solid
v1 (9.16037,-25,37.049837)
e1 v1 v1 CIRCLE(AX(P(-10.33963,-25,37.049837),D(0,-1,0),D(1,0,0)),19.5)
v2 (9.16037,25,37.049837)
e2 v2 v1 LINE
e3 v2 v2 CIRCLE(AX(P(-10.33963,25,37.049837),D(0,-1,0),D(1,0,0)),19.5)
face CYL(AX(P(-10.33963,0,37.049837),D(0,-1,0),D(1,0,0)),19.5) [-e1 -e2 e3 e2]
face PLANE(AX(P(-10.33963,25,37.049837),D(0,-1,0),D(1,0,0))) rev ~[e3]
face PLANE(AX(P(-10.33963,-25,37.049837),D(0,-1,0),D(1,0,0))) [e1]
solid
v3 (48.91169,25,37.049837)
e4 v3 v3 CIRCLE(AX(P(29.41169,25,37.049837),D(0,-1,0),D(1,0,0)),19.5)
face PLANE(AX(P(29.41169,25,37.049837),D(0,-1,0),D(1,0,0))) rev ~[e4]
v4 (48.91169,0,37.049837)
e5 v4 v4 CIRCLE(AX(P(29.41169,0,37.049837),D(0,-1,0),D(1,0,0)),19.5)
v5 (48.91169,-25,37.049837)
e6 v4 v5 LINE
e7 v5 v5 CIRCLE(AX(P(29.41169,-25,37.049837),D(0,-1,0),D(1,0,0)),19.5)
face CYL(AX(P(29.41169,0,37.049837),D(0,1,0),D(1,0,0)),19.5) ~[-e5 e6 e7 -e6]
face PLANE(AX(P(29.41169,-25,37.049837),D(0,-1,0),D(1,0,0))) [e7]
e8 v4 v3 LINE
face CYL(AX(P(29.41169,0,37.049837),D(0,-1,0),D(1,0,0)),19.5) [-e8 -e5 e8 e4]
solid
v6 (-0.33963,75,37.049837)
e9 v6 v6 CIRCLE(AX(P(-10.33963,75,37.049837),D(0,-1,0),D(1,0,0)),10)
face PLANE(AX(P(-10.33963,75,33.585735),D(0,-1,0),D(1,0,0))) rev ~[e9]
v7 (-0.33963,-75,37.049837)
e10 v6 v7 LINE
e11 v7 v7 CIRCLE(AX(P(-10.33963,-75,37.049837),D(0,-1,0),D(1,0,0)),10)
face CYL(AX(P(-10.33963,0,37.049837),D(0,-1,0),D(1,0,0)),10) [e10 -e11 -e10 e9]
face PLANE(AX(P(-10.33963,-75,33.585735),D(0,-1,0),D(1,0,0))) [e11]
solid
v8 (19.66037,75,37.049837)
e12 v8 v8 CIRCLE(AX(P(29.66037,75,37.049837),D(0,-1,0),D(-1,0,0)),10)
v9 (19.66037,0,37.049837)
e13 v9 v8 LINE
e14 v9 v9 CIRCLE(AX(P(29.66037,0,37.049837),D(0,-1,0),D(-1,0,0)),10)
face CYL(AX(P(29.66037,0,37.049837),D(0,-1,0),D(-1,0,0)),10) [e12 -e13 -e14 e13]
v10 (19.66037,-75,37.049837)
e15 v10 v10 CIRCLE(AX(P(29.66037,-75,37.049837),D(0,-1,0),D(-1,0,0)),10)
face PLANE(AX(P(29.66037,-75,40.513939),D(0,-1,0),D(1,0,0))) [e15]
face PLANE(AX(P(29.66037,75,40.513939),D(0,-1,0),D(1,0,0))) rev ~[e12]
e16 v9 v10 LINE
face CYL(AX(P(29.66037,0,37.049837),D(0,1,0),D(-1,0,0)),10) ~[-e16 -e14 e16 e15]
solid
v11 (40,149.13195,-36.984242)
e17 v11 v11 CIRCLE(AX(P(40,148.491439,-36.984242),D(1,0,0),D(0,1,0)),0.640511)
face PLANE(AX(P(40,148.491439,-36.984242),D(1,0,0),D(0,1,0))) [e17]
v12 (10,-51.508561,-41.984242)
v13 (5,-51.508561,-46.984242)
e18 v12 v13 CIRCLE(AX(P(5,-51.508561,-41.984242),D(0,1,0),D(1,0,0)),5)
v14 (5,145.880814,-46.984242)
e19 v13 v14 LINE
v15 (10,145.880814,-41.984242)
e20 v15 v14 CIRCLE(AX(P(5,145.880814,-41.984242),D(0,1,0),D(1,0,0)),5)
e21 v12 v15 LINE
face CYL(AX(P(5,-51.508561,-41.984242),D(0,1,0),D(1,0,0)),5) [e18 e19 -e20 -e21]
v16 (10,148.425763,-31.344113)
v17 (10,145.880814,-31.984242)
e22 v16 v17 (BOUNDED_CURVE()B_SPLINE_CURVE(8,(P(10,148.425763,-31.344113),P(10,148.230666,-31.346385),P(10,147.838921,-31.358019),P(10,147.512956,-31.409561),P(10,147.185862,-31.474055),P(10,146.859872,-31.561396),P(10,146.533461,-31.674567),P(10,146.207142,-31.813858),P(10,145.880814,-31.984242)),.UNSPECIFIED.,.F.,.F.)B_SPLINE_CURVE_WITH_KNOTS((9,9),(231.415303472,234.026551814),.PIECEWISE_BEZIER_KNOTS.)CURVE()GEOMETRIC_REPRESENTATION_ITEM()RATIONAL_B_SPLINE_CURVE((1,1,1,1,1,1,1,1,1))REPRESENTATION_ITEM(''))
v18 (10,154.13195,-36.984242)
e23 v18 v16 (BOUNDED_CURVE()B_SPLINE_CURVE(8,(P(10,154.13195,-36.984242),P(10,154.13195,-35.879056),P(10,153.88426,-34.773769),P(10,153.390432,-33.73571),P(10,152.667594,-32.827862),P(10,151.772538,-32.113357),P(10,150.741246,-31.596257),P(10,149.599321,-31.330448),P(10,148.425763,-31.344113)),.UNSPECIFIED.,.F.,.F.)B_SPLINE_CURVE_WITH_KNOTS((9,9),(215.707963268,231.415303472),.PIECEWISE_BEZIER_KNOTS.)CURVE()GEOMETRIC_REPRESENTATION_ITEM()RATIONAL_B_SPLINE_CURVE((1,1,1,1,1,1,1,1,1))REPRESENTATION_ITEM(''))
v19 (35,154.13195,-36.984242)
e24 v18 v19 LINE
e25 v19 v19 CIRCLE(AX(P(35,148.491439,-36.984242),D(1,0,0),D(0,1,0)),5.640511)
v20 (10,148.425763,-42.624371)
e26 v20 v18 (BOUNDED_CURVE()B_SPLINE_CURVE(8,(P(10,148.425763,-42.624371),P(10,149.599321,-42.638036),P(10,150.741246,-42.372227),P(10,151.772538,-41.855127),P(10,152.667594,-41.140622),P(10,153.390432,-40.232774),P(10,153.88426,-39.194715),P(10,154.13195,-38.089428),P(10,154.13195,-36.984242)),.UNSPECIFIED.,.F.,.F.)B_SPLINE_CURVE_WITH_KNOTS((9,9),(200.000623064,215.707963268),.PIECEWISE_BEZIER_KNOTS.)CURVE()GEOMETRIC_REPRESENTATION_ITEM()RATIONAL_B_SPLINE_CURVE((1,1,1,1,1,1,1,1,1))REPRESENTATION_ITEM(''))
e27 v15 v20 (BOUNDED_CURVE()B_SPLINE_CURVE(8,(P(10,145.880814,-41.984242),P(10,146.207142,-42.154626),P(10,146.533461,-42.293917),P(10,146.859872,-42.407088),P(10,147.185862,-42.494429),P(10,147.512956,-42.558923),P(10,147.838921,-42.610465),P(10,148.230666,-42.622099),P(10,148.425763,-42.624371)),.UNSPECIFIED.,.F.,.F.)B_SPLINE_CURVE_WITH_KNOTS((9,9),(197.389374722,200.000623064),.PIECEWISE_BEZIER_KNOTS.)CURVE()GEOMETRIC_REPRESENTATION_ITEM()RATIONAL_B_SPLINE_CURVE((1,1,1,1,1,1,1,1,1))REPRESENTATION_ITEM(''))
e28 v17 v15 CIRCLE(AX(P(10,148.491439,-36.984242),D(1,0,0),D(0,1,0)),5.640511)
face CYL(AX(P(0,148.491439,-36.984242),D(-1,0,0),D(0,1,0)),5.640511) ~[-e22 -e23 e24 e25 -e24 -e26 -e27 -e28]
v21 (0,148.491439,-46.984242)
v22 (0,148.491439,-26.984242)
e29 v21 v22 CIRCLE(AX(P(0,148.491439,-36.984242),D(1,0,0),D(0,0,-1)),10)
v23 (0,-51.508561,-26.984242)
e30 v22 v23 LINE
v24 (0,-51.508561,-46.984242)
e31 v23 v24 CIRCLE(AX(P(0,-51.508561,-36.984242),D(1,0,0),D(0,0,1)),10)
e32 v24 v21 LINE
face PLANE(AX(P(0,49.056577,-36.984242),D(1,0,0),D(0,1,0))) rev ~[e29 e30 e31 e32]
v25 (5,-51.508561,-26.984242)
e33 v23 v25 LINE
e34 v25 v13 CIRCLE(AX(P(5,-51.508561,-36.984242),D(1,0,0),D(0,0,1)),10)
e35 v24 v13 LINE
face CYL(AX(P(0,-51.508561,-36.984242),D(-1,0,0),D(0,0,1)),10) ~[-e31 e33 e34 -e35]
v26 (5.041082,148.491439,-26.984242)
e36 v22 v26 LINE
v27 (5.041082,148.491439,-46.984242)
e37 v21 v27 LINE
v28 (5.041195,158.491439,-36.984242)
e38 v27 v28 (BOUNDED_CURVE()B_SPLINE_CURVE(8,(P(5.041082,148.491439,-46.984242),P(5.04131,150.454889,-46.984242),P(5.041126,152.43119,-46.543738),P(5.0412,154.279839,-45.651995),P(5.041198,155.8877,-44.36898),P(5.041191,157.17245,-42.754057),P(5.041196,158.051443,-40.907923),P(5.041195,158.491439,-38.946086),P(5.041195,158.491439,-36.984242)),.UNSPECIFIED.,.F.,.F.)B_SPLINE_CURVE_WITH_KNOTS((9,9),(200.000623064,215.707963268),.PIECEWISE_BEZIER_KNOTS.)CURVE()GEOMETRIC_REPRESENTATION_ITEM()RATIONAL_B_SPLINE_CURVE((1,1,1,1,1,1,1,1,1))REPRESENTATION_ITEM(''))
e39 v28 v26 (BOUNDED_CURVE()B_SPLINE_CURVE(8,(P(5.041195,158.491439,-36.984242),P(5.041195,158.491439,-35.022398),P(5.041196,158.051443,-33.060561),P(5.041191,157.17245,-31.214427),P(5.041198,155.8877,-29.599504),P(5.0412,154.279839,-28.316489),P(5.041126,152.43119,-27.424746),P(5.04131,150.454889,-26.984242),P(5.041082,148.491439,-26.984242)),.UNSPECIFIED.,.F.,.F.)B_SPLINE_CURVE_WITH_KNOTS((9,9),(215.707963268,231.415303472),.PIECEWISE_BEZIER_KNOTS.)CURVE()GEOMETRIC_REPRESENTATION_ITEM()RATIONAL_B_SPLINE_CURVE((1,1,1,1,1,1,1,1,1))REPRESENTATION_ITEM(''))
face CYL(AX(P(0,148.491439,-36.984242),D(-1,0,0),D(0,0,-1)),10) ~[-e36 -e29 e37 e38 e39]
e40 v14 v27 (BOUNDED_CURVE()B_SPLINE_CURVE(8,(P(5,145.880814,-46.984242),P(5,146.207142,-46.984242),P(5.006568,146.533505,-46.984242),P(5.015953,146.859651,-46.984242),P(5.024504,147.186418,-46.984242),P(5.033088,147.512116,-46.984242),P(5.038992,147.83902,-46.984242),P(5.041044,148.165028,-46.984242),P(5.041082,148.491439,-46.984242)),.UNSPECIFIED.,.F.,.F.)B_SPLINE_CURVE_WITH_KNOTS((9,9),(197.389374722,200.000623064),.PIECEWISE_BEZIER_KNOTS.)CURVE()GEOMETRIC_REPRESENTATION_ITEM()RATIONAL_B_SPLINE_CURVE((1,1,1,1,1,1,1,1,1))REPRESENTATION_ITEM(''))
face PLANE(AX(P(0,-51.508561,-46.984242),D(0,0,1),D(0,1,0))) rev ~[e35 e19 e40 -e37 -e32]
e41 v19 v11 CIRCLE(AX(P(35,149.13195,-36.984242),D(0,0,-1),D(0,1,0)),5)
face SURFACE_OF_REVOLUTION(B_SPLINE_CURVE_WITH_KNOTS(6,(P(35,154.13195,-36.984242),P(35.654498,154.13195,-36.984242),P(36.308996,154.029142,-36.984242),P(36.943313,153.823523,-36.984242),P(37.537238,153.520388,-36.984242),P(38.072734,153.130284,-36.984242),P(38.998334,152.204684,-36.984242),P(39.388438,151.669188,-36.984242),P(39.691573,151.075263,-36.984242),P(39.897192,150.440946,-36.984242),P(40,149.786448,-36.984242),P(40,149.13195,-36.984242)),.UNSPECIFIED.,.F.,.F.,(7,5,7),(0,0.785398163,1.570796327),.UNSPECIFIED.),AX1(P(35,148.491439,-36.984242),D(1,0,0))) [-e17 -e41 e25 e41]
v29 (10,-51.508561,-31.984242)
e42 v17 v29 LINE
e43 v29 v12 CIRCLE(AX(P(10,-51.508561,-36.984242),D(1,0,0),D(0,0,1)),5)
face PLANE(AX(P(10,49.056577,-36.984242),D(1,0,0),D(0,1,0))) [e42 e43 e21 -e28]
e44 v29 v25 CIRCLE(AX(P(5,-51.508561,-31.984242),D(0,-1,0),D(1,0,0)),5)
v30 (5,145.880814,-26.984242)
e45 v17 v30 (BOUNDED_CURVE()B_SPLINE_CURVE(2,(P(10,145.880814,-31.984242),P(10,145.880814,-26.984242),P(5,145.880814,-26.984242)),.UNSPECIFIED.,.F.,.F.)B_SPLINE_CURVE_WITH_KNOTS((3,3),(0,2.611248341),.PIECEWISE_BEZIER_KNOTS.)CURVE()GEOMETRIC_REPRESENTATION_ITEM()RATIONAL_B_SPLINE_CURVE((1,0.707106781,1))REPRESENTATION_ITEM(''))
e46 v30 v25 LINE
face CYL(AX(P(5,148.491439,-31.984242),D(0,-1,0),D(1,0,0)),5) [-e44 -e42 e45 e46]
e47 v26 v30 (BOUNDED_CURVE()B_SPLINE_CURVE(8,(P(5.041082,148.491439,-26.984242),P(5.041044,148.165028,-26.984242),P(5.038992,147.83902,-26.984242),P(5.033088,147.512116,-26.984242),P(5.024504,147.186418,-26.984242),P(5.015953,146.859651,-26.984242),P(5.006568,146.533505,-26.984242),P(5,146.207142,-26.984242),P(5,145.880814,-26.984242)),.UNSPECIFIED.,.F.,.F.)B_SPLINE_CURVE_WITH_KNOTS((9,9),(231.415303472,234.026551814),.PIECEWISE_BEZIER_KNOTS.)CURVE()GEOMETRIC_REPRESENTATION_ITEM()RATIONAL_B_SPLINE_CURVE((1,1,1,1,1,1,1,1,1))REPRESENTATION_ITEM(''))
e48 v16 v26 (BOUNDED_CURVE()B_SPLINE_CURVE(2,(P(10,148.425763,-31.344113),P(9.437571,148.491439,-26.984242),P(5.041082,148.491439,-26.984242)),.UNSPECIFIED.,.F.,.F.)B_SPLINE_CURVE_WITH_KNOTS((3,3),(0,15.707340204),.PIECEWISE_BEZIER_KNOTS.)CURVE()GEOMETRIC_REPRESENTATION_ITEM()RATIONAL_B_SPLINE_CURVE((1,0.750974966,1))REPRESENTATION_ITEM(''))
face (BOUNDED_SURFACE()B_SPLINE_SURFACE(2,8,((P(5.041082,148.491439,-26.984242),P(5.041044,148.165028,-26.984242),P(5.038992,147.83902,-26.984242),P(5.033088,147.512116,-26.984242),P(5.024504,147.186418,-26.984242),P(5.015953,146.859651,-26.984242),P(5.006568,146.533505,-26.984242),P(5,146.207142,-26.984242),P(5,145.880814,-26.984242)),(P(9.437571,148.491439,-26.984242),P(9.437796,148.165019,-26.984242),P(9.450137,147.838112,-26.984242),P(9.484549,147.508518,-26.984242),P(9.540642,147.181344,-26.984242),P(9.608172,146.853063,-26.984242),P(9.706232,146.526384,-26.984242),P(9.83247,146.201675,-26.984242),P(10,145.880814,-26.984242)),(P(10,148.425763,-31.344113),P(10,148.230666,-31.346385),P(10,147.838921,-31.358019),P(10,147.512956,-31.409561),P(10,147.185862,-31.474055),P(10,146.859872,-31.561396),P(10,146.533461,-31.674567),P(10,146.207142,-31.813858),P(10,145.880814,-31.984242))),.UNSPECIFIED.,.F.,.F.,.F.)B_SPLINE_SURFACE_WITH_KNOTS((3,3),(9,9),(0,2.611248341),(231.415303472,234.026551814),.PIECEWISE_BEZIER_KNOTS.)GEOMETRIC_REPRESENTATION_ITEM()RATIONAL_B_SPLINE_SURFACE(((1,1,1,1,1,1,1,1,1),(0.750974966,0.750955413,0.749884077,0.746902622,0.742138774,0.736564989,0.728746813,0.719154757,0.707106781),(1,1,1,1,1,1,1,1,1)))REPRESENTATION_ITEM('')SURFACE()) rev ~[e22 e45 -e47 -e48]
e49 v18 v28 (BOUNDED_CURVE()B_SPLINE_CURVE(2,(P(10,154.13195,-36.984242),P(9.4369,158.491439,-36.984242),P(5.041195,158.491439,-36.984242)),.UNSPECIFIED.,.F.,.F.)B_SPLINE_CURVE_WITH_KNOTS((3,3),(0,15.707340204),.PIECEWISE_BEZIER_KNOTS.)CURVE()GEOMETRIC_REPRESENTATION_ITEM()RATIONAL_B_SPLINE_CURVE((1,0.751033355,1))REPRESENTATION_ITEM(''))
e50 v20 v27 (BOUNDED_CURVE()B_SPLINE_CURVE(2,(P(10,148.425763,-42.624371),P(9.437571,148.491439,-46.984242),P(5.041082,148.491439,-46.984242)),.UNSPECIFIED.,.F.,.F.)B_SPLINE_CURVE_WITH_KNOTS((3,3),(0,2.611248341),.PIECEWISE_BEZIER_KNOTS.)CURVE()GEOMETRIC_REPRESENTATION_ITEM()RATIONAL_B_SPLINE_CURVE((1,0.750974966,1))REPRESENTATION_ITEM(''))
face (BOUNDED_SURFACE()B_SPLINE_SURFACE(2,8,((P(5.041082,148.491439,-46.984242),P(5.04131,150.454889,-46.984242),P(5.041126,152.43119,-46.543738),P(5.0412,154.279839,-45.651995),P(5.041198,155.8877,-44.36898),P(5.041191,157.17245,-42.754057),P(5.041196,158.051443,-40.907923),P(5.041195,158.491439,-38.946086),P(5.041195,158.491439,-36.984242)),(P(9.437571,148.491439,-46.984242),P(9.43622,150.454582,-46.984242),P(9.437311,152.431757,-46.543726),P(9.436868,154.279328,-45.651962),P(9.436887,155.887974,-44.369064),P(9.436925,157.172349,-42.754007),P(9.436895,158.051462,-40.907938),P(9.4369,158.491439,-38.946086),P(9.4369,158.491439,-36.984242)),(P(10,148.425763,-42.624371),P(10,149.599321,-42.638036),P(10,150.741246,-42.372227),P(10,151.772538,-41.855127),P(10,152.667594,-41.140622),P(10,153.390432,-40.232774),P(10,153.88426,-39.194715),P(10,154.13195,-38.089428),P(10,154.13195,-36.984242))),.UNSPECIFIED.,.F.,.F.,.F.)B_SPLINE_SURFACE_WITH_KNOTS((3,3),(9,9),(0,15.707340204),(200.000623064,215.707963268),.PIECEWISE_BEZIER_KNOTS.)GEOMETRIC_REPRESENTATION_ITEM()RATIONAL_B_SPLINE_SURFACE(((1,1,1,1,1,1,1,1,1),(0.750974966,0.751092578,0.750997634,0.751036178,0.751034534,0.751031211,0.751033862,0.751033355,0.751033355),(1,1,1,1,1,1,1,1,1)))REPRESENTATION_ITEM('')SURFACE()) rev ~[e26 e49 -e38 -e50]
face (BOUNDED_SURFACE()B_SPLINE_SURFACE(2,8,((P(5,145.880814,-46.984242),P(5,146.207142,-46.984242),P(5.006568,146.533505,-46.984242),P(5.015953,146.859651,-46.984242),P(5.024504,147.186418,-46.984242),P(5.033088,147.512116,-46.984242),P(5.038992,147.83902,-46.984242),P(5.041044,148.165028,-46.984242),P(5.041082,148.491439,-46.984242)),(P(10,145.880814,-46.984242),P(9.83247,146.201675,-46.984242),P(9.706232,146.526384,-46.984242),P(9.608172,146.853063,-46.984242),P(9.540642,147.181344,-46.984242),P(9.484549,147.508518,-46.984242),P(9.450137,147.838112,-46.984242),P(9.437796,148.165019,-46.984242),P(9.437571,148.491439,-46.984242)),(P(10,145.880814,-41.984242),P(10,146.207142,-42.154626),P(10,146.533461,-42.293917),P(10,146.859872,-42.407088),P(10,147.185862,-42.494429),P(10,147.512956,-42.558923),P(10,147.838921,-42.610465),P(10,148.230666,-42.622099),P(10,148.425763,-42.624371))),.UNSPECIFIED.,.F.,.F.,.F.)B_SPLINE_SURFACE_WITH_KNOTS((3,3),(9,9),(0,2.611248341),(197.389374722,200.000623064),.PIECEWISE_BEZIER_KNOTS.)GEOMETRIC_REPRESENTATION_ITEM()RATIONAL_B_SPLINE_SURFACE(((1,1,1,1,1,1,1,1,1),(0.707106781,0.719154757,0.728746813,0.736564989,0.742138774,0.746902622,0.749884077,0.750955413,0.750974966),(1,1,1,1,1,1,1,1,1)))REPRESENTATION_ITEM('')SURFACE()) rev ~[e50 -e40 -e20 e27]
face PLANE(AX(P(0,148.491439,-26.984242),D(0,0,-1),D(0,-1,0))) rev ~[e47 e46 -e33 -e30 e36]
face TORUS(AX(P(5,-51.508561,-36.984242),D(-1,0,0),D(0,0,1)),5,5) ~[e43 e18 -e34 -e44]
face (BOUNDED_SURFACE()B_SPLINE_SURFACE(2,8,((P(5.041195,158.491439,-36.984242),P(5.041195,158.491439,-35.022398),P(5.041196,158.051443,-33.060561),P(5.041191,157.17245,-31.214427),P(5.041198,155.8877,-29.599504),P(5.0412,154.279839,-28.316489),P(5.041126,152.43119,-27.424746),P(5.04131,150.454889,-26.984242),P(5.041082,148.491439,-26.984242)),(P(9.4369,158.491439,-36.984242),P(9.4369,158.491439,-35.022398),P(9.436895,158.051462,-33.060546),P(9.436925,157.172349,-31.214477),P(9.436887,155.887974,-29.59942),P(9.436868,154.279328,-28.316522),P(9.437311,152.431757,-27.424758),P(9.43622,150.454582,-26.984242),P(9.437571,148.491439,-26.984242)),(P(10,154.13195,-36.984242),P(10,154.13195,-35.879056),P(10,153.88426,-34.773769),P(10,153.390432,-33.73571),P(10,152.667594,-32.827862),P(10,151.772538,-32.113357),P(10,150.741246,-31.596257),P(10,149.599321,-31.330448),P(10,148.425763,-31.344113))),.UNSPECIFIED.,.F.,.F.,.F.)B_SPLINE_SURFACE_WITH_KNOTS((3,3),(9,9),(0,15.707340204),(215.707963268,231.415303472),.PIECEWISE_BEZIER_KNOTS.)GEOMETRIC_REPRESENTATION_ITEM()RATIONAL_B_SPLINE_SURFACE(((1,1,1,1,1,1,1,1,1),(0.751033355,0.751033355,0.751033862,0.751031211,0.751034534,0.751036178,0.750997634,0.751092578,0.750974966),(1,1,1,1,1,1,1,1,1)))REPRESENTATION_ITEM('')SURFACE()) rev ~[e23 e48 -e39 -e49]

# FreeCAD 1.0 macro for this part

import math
import FreeCAD as App
import Part
import Sketcher

V = App.Vector
Q = App.Units.Quantity


def edges_at(feature, points):
    """Names of the edges that pass closest to the given points."""
    edges = feature.Shape.Edges
    near = lambda p: min(range(len(edges)), key=lambda i: edges[i].distToShape(Part.Vertex(*p))[0])
    return sorted({f"Edge{near(p) + 1}" for p in points})

doc = App.newDocument("Part")
body = doc.addObject("PartDesign::Body", "Body")
body.AllowCompound = True

sketch1 = body.newObject("Sketcher::SketchObject", "Sketch")
sketch1.AttachmentSupport = (doc.getObject("XZ_Plane"), [""])
sketch1.MapMode = "FlatFace"
sketch1.addGeometry([
    Part.Circle(V(30, 37, 0), V(0, 0, 1), 10),
    Part.Circle(V(-10, 37, 0), V(0, 0, 1), 10),
], False)
sketch1.addConstraint([
    Sketcher.Constraint("Equal", 0, 1),
    Sketcher.Constraint("Horizontal", 0, 3, 1, 3),
    Sketcher.Constraint("Diameter", 0, Q("20 mm")),
    Sketcher.Constraint("DistanceX", 1, 3, 0, 3, Q("40 mm")),
    Sketcher.Constraint("DistanceX", -1, 1, 0, 3, Q("29.66037 mm")),
    Sketcher.Constraint("DistanceY", -1, 1, 0, 3, Q("37.049837 mm")),
])
pad1 = body.newObject("PartDesign::Pad", "Pad")
pad1.Profile = sketch1
pad1.Length = 150
pad1.Midplane = True
body2 = doc.addObject("PartDesign::Body", "Body001")
body2.AllowCompound = True

sketch2 = body2.newObject("Sketcher::SketchObject", "Sketch001")
sketch2.AttachmentSupport = (doc.getObject("XZ_Plane001"), [""])
sketch2.MapMode = "FlatFace"
sketch2.addGeometry([
    Part.Circle(V(29, 37, 0), V(0, 0, 1), 20),
    Part.Circle(V(-10, 37, 0), V(0, 0, 1), 20),
], False)
sketch2.addConstraint([
    Sketcher.Constraint("Equal", 0, 1),
    Sketcher.Constraint("Horizontal", 0, 3, 1, 3),
    Sketcher.Constraint("Diameter", 0, Q("39 mm")),
    Sketcher.Constraint("DistanceX", -1, 1, 0, 3, Q("29.41169 mm")),
    Sketcher.Constraint("DistanceX", 1, 3, -1, 1, Q("10.33963 mm")),
    Sketcher.Constraint("DistanceY", -1, 1, 0, 3, Q("37.049837 mm")),
])
pad2 = body2.newObject("PartDesign::Pad", "Pad001")
pad2.Profile = sketch2
pad2.Length = 50
pad2.Midplane = True
body3 = doc.addObject("PartDesign::Body", "Body002")

sketch3 = body3.newObject("Sketcher::SketchObject", "Sketch002")
sketch3.AttachmentSupport = (doc.getObject("YZ_Plane002"), [""])
sketch3.MapMode = "FlatFace"
sketch3.addGeometry(Part.Circle(V(148, -37, 0), V(0, 0, 1), 6), False)
sketch3.addConstraint([
    Sketcher.Constraint("Diameter", 0, Q("11.281022 mm")),
    Sketcher.Constraint("DistanceX", -1, 1, 0, 3, Q("148.491439 mm")),
    Sketcher.Constraint("DistanceY", 0, 3, -1, 1, Q("36.984242 mm")),
])
pad3 = body3.newObject("PartDesign::Pad", "Pad002")
pad3.Profile = sketch3
pad3.Length = 40

sketch4 = body3.newObject("Sketcher::SketchObject", "Sketch003")
sketch4.AttachmentSupport = (doc.getObject("YZ_Plane002"), [""])
sketch4.MapMode = "FlatFace"
sketch4.addGeometry([
    Part.LineSegment(V(148, -27, 0), V(-52, -27, 0)),
    Part.ArcOfCircle(Part.Circle(V(-52, -37, 0), V(0, 0, 1), 10), math.radians(90), math.radians(270)),
    Part.LineSegment(V(-52, -47, 0), V(148, -47, 0)),
    Part.ArcOfCircle(Part.Circle(V(148, -37, 0), V(0, 0, 1), 10), math.radians(-90), math.radians(90)),
    Part.Circle(V(148, -37, 0), V(0, 0, 1), 6),
], False)
sketch4.addConstraint([
    Sketcher.Constraint("Tangent", 0, 2, 1, 1),
    Sketcher.Constraint("Tangent", 1, 2, 2, 1),
    Sketcher.Constraint("Tangent", 2, 2, 3, 1),
    Sketcher.Constraint("Tangent", 3, 2, 0, 1),
    Sketcher.Constraint("Horizontal", 0),
    Sketcher.Constraint("Horizontal", 2),
    Sketcher.Constraint("Coincident", 4, 3, 3, 3),
    Sketcher.Constraint("Radius", 1, Q("10 mm")),
    Sketcher.Constraint("DistanceX", 0, 2, 0, 1, Q("200 mm")),
    Sketcher.Constraint("Diameter", 4, Q("11.281022 mm")),
    Sketcher.Constraint("DistanceX", 1, 3, -1, 1, Q("51.508561 mm")),
    Sketcher.Constraint("DistanceY", 0, 2, -1, 1, Q("26.984242 mm")),
])
pad4 = body3.newObject("PartDesign::Pad", "Pad003")
pad4.Profile = sketch4
pad4.Length = 10
doc.recompute()

fillet = body3.newObject("PartDesign::Fillet", "Fillet")
fillet.Base = (pad4, edges_at(pad4, [(10, 48.491, -46.984), (40, 142.851, -36.984)]))
fillet.Radius = 5

doc.recompute()
